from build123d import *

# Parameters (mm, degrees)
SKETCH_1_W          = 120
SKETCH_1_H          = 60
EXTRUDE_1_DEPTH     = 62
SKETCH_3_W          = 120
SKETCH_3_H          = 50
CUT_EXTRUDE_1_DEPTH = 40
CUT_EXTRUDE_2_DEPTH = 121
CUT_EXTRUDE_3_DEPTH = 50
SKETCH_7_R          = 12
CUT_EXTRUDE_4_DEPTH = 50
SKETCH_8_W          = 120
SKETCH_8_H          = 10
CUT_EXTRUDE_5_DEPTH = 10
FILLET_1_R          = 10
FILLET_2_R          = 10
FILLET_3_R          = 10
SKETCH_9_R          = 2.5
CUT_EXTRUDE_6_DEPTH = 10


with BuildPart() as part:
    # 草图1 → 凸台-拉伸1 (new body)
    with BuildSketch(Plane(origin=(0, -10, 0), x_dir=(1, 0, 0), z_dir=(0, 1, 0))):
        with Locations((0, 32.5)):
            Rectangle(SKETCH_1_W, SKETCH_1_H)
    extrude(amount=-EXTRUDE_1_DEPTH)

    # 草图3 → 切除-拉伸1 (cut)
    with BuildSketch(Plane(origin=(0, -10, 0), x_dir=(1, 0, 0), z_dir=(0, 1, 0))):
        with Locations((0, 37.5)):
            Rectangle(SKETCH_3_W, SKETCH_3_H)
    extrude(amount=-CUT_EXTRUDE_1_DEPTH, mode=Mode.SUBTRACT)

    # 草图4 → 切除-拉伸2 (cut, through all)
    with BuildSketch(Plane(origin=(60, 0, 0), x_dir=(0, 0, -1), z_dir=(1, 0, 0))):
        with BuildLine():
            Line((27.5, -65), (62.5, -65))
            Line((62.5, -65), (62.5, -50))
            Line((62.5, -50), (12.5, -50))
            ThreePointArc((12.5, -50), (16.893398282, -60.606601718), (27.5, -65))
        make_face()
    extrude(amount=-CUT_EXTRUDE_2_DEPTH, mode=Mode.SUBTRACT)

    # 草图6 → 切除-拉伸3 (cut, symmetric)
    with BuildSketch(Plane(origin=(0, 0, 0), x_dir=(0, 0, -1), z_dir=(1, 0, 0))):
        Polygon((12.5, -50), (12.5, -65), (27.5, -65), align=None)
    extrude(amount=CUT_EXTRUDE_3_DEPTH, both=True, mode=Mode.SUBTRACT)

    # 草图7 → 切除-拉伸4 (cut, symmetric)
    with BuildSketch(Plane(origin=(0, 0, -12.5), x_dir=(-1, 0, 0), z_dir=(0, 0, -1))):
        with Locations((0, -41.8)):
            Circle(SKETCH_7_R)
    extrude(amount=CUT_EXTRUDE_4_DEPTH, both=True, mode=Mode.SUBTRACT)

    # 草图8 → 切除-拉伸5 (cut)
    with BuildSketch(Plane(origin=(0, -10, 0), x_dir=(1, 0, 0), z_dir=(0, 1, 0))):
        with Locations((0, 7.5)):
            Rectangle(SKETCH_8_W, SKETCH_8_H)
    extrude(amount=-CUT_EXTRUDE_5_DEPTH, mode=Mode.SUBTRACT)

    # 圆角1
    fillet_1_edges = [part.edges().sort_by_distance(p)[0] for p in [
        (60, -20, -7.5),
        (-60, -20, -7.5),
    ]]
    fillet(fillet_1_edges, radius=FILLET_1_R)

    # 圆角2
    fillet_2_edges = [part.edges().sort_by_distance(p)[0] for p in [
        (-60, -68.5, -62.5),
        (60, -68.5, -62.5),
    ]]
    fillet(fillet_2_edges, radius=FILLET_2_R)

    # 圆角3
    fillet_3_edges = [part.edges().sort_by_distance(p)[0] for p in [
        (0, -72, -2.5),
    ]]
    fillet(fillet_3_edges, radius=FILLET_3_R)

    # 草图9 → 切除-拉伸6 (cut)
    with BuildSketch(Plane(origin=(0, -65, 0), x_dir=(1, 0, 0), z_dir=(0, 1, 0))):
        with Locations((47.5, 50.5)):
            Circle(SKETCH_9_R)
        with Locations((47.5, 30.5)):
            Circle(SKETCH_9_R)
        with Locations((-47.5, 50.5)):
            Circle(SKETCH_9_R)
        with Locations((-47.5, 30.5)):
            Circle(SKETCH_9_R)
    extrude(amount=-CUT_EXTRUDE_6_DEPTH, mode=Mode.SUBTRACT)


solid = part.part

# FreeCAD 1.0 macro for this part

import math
import FreeCAD as App
import Part
import Sketcher
Q = App.Units.Quantity


def edges_at(feature, points):
    """Names of the edges that pass closest to the given points."""
    edges = feature.Shape.Edges
    near = lambda p: min(range(len(edges)), key=lambda i: edges[i].distToShape(Part.Vertex(*p))[0])
    return sorted({f"Edge{near(p) + 1}" for p in points})


def add_polygon(sketch, points):
    """Adds a closed chain of lines whose ends are joined by coincident constraints."""
    first, n = sketch.GeometryCount, len(points)
    for a, b in zip(points, points[1:] + points[:1]):
        sketch.addGeometry(Part.LineSegment(App.Vector(*a, 0), App.Vector(*b, 0)), False)
    for i in range(n):
        sketch.addConstraint(Sketcher.Constraint("Coincident", first + i, 2, first + (i + 1) % n, 1))

doc = App.newDocument("Part")
body = doc.addObject("PartDesign::Body", "Body")

sketch1 = body.newObject("Sketcher::SketchObject", "Sketch")
sketch1.AttachmentSupport = (doc.getObject("XZ_Plane"), [""])
sketch1.MapMode = "FlatFace"
sketch1.AttachmentOffset = App.Placement(App.Vector(0, 0, 10), App.Rotation())
add_polygon(sketch1, [(-60, -62), (-60, -2), (60, -2), (60, -62)])
sketch1.addConstraint([
    Sketcher.Constraint("Vertical", 0),
    Sketcher.Constraint("Horizontal", 1),
    Sketcher.Constraint("Vertical", 2),
    Sketcher.Constraint("Horizontal", 3),
    Sketcher.Constraint("DistanceX", 1, 1, 1, 2, Q("120 mm")),
    Sketcher.Constraint("DistanceY", 0, 1, 0, 2, Q("60 mm")),
    Sketcher.Constraint("DistanceX", 0, 2, -1, 1, Q("60 mm")),
    Sketcher.Constraint("DistanceY", 0, 2, -1, 1, Q("2.5 mm")),
])
pad1 = body.newObject("PartDesign::Pad", "Pad")
pad1.Profile = sketch1
pad1.Length = 62

sketch2 = body.newObject("Sketcher::SketchObject", "Sketch001")
sketch2.AttachmentSupport = (doc.getObject("XZ_Plane"), [""])
sketch2.MapMode = "FlatFace"
sketch2.AttachmentOffset = App.Placement(App.Vector(0, 0, 10), App.Rotation())
add_polygon(sketch2, [(-60, -62), (-60, -12), (60, -12), (60, -62)])
sketch2.addConstraint([
    Sketcher.Constraint("Vertical", 0),
    Sketcher.Constraint("Horizontal", 1),
    Sketcher.Constraint("Vertical", 2),
    Sketcher.Constraint("Horizontal", 3),
    Sketcher.Constraint("DistanceX", 1, 1, 1, 2, Q("120 mm")),
    Sketcher.Constraint("DistanceY", 0, 1, 0, 2, Q("50 mm")),
    Sketcher.Constraint("DistanceX", 0, 2, -1, 1, Q("60 mm")),
    Sketcher.Constraint("DistanceY", 0, 2, -1, 1, Q("12.5 mm")),
])
pocket1 = body.newObject("PartDesign::Pocket", "Pocket")
pocket1.Profile = sketch2
pocket1.Length = 40
pocket1.Reversed = True

sketch3 = body.newObject("Sketcher::SketchObject", "Sketch002")
sketch3.AttachmentSupport = (doc.getObject("YZ_Plane"), [""])
sketch3.MapMode = "FlatFace"
sketch3.AttachmentOffset = App.Placement(App.Vector(0, 0, 60), App.Rotation())
sketch3.addGeometry([
    Part.LineSegment(App.Vector(-65, -28, 0), App.Vector(-65, -62, 0)),
    Part.LineSegment(App.Vector(-65, -62, 0), App.Vector(-50, -62, 0)),
    Part.LineSegment(App.Vector(-50, -62, 0), App.Vector(-50, -12, 0)),
    Part.ArcOfCircle(Part.Circle(App.Vector(-50, -27, 0), App.Vector(0, 0, 1), 15), math.radians(90), math.radians(180)),
], False)
sketch3.addConstraint([
    Sketcher.Constraint("Coincident", 0, 2, 1, 1),
    Sketcher.Constraint("Coincident", 1, 2, 2, 1),
    Sketcher.Constraint("Coincident", 2, 2, 3, 1),
    Sketcher.Constraint("Tangent", 3, 2, 0, 1),
    Sketcher.Constraint("Vertical", 0),
    Sketcher.Constraint("Horizontal", 1),
    Sketcher.Constraint("Vertical", 2),
    Sketcher.Constraint("Vertical", 3, 3, 1, 2),
    Sketcher.Constraint("Radius", 3, Q("15 mm")),
    Sketcher.Constraint("DistanceY", 0, 2, 0, 1, Q("35 mm")),
    Sketcher.Constraint("DistanceX", 3, 3, -1, 1, Q("50 mm")),
    Sketcher.Constraint("DistanceY", 3, 3, -1, 1, Q("27.5 mm")),
])
pocket2 = body.newObject("PartDesign::Pocket", "Pocket001")
pocket2.Profile = sketch3
pocket2.Type = "ThroughAll"

sketch4 = body.newObject("Sketcher::SketchObject", "Sketch003")
sketch4.AttachmentSupport = (doc.getObject("YZ_Plane"), [""])
sketch4.MapMode = "FlatFace"
add_polygon(sketch4, [(-50, -12), (-65, -12), (-65, -28)])
sketch4.addConstraint([
    Sketcher.Constraint("Horizontal", 0),
    Sketcher.Constraint("Vertical", 1),
    Sketcher.Constraint("Equal", 0, 1),
    Sketcher.Constraint("DistanceX", 0, 2, 0, 1, Q("15 mm")),
    Sketcher.Constraint("DistanceX", 0, 2, -1, 1, Q("65 mm")),
    Sketcher.Constraint("DistanceY", 0, 2, -1, 1, Q("12.5 mm")),
])
pocket3 = body.newObject("PartDesign::Pocket", "Pocket002")
pocket3.Profile = sketch4
pocket3.Length = 100
pocket3.Midplane = True

sketch5 = body.newObject("Sketcher::SketchObject", "Sketch004")
sketch5.AttachmentSupport = (doc.getObject("XY_Plane"), [""])
sketch5.MapMode = "FlatFace"
sketch5.AttachmentOffset = App.Placement(App.Vector(0, 0, -12.5), App.Rotation())
sketch5.addGeometry(Part.Circle(App.Vector(0, -42, 0), App.Vector(0, 0, 1), 12), False)
sketch5.addConstraint([
    Sketcher.Constraint("PointOnObject", 0, 3, -2),
    Sketcher.Constraint("Diameter", 0, Q("24 mm")),
    Sketcher.Constraint("DistanceY", 0, 3, -1, 1, Q("41.8 mm")),
])
pocket4 = body.newObject("PartDesign::Pocket", "Pocket003")
pocket4.Profile = sketch5
pocket4.Length = 100
pocket4.Midplane = True

sketch6 = body.newObject("Sketcher::SketchObject", "Sketch005")
sketch6.AttachmentSupport = (doc.getObject("XZ_Plane"), [""])
sketch6.MapMode = "FlatFace"
sketch6.AttachmentOffset = App.Placement(App.Vector(0, 0, 10), App.Rotation())
add_polygon(sketch6, [(-60, -12), (-60, -2), (60, -2), (60, -12)])
sketch6.addConstraint([
    Sketcher.Constraint("Vertical", 0),
    Sketcher.Constraint("Horizontal", 1),
    Sketcher.Constraint("Vertical", 2),
    Sketcher.Constraint("Horizontal", 3),
    Sketcher.Constraint("DistanceX", 1, 1, 1, 2, Q("120 mm")),
    Sketcher.Constraint("DistanceY", 0, 1, 0, 2, Q("10 mm")),
    Sketcher.Constraint("DistanceX", 0, 2, -1, 1, Q("60 mm")),
    Sketcher.Constraint("DistanceY", 0, 2, -1, 1, Q("2.5 mm")),
])
pocket5 = body.newObject("PartDesign::Pocket", "Pocket004")
pocket5.Profile = sketch6
pocket5.Length = 10
pocket5.Reversed = True
doc.recompute()

fillet = body.newObject("PartDesign::Fillet", "Fillet")
fillet.Base = (pocket5, edges_at(pocket5, [(60, -20, -7.5), (-60, -20, -7.5)]))
fillet.Radius = 10
doc.recompute()

fillet2 = body.newObject("PartDesign::Fillet", "Fillet001")
fillet2.Base = (fillet, edges_at(fillet, [(-60, -68.5, -62.5), (60, -68.5, -62.5)]))
fillet2.Radius = 10
doc.recompute()

fillet3 = body.newObject("PartDesign::Fillet", "Fillet002")
fillet3.Base = (fillet2, edges_at(fillet2, [(0, -72, -2.5)]))
fillet3.Radius = 10

sketch7 = body.newObject("Sketcher::SketchObject", "Sketch006")
sketch7.AttachmentSupport = (doc.getObject("XZ_Plane"), [""])
sketch7.MapMode = "FlatFace"
sketch7.AttachmentOffset = App.Placement(App.Vector(0, 0, 65), App.Rotation())
sketch7.addGeometry([
    Part.Circle(App.Vector(47.5, -50.5, 0), App.Vector(0, 0, 1), 2.5),
    Part.Circle(App.Vector(47.5, -30.5, 0), App.Vector(0, 0, 1), 2.5),
    Part.Circle(App.Vector(-47.5, -50.5, 0), App.Vector(0, 0, 1), 2.5),
    Part.Circle(App.Vector(-47.5, -30.5, 0), App.Vector(0, 0, 1), 2.5),
], False)
sketch7.addConstraint([
    Sketcher.Constraint("Equal", 0, 1),
    Sketcher.Constraint("Equal", 1, 2),
    Sketcher.Constraint("Equal", 2, 3),
    Sketcher.Constraint("Symmetric", 0, 3, 2, 3, -2),
    Sketcher.Constraint("Symmetric", 1, 3, 3, 3, -2),
    Sketcher.Constraint("Vertical", 0, 3, 1, 3),
    Sketcher.Constraint("Diameter", 0, Q("5 mm")),
    Sketcher.Constraint("DistanceY", 0, 3, 1, 3, Q("20 mm")),
    Sketcher.Constraint("DistanceX", 2, 3, 0, 3, Q("95 mm")),
    Sketcher.Constraint("DistanceY", 0, 3, -1, 1, Q("50.5 mm")),
])
pocket6 = body.newObject("PartDesign::Pocket", "Pocket005")
pocket6.Profile = sketch7
pocket6.Length = 10
pocket6.Reversed = True

doc.recompute()
